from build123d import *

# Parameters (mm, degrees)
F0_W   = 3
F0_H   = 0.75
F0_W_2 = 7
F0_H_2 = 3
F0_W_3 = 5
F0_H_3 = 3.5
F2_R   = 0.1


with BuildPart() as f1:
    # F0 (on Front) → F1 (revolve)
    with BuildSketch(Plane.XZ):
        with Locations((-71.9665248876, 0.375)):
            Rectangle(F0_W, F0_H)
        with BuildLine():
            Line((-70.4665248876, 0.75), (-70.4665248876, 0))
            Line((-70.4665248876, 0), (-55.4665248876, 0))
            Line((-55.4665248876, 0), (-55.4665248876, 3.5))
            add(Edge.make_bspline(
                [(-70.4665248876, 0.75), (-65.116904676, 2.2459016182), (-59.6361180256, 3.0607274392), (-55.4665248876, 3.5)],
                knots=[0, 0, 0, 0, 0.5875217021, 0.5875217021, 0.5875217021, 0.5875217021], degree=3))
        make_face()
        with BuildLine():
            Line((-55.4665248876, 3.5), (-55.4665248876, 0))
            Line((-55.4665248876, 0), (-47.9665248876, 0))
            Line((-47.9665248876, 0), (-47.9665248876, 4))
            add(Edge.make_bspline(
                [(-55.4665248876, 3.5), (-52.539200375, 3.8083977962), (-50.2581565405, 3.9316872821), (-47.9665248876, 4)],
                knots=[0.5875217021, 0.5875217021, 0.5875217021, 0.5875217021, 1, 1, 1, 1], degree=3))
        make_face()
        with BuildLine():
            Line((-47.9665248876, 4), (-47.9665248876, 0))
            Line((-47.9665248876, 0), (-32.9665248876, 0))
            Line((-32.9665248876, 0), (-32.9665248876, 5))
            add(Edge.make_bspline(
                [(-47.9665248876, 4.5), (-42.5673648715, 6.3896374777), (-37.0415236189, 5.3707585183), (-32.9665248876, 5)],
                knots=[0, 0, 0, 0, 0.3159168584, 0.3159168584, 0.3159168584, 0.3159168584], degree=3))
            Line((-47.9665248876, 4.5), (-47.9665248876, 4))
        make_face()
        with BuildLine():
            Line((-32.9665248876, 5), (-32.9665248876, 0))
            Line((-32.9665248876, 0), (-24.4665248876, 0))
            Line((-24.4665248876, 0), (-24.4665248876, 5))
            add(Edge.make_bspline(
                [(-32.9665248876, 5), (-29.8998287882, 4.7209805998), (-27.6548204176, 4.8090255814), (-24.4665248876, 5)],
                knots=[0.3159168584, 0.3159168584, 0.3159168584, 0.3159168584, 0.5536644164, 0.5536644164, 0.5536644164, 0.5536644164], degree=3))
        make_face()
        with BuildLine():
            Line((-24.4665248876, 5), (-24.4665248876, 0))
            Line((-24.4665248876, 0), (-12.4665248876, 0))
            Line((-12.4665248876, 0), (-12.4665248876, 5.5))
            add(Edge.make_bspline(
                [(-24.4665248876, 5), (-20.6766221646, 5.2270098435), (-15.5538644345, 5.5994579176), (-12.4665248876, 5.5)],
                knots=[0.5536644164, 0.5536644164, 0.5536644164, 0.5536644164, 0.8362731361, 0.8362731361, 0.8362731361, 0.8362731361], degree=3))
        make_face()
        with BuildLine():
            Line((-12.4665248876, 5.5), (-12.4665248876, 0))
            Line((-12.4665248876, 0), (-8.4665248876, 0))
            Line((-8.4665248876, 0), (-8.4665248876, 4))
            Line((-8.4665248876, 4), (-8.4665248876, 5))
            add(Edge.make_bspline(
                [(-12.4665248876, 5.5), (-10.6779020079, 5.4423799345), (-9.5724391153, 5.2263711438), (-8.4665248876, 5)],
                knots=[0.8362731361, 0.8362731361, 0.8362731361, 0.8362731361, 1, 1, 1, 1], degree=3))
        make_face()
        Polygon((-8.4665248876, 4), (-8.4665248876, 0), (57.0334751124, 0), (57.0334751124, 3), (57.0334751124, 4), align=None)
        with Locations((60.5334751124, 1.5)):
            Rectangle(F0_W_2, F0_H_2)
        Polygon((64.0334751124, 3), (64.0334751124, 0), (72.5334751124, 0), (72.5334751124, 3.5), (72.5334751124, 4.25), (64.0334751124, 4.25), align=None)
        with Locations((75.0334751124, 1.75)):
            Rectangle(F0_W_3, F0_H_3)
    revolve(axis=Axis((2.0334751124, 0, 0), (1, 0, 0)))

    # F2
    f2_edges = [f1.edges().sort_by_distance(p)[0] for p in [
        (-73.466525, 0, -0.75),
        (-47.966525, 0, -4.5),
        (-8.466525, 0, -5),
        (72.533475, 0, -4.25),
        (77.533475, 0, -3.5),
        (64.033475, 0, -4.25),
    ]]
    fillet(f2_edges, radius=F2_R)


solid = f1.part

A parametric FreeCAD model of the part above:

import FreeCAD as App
import Part
import Sketcher


def edges_at(feature, points):
    """Names of the edges that pass closest to the given points."""
    edges = feature.Shape.Edges
    near = lambda p: min(range(len(edges)), key=lambda i: edges[i].distToShape(Part.Vertex(*p))[0])
    return sorted({f"Edge{near(p) + 1}" for p in points})

doc = App.newDocument("Part")
body = doc.addObject("PartDesign::Body", "Body")

sketch1 = body.newObject("Sketcher::SketchObject", "Sketch")
sketch1.AttachmentSupport = (doc.getObject("XZ_Plane"), [""])
sketch1.MapMode = "FlatFace"
sketch1.addGeometry([
    Part.LineSegment(App.Vector(-73.466525, 0.75, 0), App.Vector(-73.466525, 0, 0)),
    Part.LineSegment(App.Vector(-73.466525, 0, 0), App.Vector(77.533475, 0, 0)),
    Part.LineSegment(App.Vector(77.533475, 0, 0), App.Vector(77.533475, 3.5, 0)),
    Part.LineSegment(App.Vector(77.533475, 3.5, 0), App.Vector(72.533475, 3.5, 0)),
    Part.LineSegment(App.Vector(72.533475, 3.5, 0), App.Vector(72.533475, 4.25, 0)),
    Part.LineSegment(App.Vector(72.533475, 4.25, 0), App.Vector(64.033475, 4.25, 0)),
    Part.LineSegment(App.Vector(64.033475, 4.25, 0), App.Vector(64.033475, 3, 0)),
    Part.LineSegment(App.Vector(64.033475, 3, 0), App.Vector(57.033475, 3, 0)),
    Part.LineSegment(App.Vector(57.033475, 3, 0), App.Vector(57.033475, 4, 0)),
    Part.LineSegment(App.Vector(57.033475, 4, 0), App.Vector(-8.466525, 4, 0)),
    Part.LineSegment(App.Vector(-8.466525, 4, 0), App.Vector(-8.466525, 5, 0)),
    Part.BSplineCurve([App.Vector(-12.466525, 5.5, 0), App.Vector(-10.677902, 5.44238, 0), App.Vector(-9.572439, 5.226371, 0), App.Vector(-8.466525, 5, 0)], [4, 4], [0.836273136, 1], False, 3, [1, 1, 1, 1], False),
    Part.BSplineCurve([App.Vector(-24.466525, 5, 0), App.Vector(-20.676622, 5.22701, 0), App.Vector(-15.553864, 5.599458, 0), App.Vector(-12.466525, 5.5, 0)], [4, 4], [0.553664416, 0.836273136], False, 3, [1, 1, 1, 1], False),
    Part.BSplineCurve([App.Vector(-32.966525, 5, 0), App.Vector(-29.899829, 4.720981, 0), App.Vector(-27.65482, 4.809026, 0), App.Vector(-24.466525, 5, 0)], [4, 4], [0.315916858, 0.553664416], False, 3, [1, 1, 1, 1], False),
    Part.BSplineCurve([App.Vector(-47.966525, 4.5, 0), App.Vector(-42.567365, 6.389637, 0), App.Vector(-37.041524, 5.370759, 0), App.Vector(-32.966525, 5, 0)], [4, 4], [0, 0.315916858], False, 3, [1, 1, 1, 1], False),
    Part.LineSegment(App.Vector(-47.966525, 4.5, 0), App.Vector(-47.966525, 4, 0)),
    Part.BSplineCurve([App.Vector(-55.466525, 3.5, 0), App.Vector(-52.5392, 3.808398, 0), App.Vector(-50.258157, 3.931687, 0), App.Vector(-47.966525, 4, 0)], [4, 4], [0.587521702, 1], False, 3, [1, 1, 1, 1], False),
    Part.BSplineCurve([App.Vector(-70.466525, 0.75, 0), App.Vector(-65.116905, 2.245902, 0), App.Vector(-59.636118, 3.060727, 0), App.Vector(-55.466525, 3.5, 0)], [4, 4], [0, 0.587521702], False, 3, [1, 1, 1, 1], False),
    Part.LineSegment(App.Vector(-70.466525, 0.75, 0), App.Vector(-73.466525, 0.75, 0)),
], False)
sketch1.addConstraint([
    Sketcher.Constraint("Block", 11),
    Sketcher.Constraint("Block", 12),
    Sketcher.Constraint("Block", 13),
    Sketcher.Constraint("Block", 14),
    Sketcher.Constraint("Block", 16),
    Sketcher.Constraint("Block", 17),
    Sketcher.Constraint("Coincident", 0, 2, 1, 1),
    Sketcher.Constraint("Coincident", 1, 2, 2, 1),
    Sketcher.Constraint("Coincident", 2, 2, 3, 1),
    Sketcher.Constraint("Coincident", 3, 2, 4, 1),
    Sketcher.Constraint("Coincident", 4, 2, 5, 1),
    Sketcher.Constraint("Coincident", 5, 2, 6, 1),
    Sketcher.Constraint("Coincident", 6, 2, 7, 1),
    Sketcher.Constraint("Coincident", 7, 2, 8, 1),
    Sketcher.Constraint("Coincident", 8, 2, 9, 1),
    Sketcher.Constraint("Coincident", 9, 2, 10, 1),
    Sketcher.Constraint("Coincident", 10, 2, 11, 2),
    Sketcher.Constraint("Coincident", 14, 1, 15, 1),
    Sketcher.Constraint("Coincident", 15, 2, 16, 2),
    Sketcher.Constraint("Coincident", 17, 1, 18, 1),
    Sketcher.Constraint("Coincident", 18, 2, 0, 1),
    Sketcher.Constraint("Vertical", 0),
    Sketcher.Constraint("Horizontal", 1),
    Sketcher.Constraint("Vertical", 2),
    Sketcher.Constraint("Horizontal", 3),
    Sketcher.Constraint("Vertical", 4),
    Sketcher.Constraint("Horizontal", 5),
    Sketcher.Constraint("Vertical", 6),
    Sketcher.Constraint("Horizontal", 7),
    Sketcher.Constraint("Vertical", 8),
    Sketcher.Constraint("Horizontal", 9),
    Sketcher.Constraint("Vertical", 10),
    Sketcher.Constraint("Horizontal", 18),
    Sketcher.Constraint("PointOnObject", 0, 2, -1),
    Sketcher.Constraint("DistanceX", 1, 1, 1, 2, 151.0),
    Sketcher.Constraint("DistanceX", 3, 2, 3, 1, 5.0),
    Sketcher.Constraint("DistanceX", 7, 2, 7, 1, 7.0),
    Sketcher.Constraint("DistanceX", 18, 2, 18, 1, 3.0),
    Sketcher.Constraint("DistanceY", 8, 1, 8, 2, 1.0),
    Sketcher.Constraint("DistanceY", 10, 1, 10, 2, 1.0),
    Sketcher.Constraint("DistanceX", 5, 2, 5, 1, 8.5),
    Sketcher.Constraint("DistanceY", 2, 1, 2, 2, 3.5),
    Sketcher.Constraint("DistanceY", 4, 1, 4, 2, 0.75),
])
revolution = body.newObject("PartDesign::Revolution", "Revolution")
revolution.Profile = sketch1
revolution.ReferenceAxis = (sketch1, ["H_Axis"])
revolution.Angle = 360
doc.recompute()

fillet = body.newObject("PartDesign::Fillet", "Fillet")
fillet.Base = (revolution, edges_at(revolution, [
    (-73.467, 0, -0.75),
    (-47.967, 0, -4.5),
    (-8.467, 0, -5),
    (72.533, 0, -4.25),
    (77.533, 0, -3.5),
    (64.033, 0, -4.25),
]))
fillet.Radius = 0.1

doc.recompute()
